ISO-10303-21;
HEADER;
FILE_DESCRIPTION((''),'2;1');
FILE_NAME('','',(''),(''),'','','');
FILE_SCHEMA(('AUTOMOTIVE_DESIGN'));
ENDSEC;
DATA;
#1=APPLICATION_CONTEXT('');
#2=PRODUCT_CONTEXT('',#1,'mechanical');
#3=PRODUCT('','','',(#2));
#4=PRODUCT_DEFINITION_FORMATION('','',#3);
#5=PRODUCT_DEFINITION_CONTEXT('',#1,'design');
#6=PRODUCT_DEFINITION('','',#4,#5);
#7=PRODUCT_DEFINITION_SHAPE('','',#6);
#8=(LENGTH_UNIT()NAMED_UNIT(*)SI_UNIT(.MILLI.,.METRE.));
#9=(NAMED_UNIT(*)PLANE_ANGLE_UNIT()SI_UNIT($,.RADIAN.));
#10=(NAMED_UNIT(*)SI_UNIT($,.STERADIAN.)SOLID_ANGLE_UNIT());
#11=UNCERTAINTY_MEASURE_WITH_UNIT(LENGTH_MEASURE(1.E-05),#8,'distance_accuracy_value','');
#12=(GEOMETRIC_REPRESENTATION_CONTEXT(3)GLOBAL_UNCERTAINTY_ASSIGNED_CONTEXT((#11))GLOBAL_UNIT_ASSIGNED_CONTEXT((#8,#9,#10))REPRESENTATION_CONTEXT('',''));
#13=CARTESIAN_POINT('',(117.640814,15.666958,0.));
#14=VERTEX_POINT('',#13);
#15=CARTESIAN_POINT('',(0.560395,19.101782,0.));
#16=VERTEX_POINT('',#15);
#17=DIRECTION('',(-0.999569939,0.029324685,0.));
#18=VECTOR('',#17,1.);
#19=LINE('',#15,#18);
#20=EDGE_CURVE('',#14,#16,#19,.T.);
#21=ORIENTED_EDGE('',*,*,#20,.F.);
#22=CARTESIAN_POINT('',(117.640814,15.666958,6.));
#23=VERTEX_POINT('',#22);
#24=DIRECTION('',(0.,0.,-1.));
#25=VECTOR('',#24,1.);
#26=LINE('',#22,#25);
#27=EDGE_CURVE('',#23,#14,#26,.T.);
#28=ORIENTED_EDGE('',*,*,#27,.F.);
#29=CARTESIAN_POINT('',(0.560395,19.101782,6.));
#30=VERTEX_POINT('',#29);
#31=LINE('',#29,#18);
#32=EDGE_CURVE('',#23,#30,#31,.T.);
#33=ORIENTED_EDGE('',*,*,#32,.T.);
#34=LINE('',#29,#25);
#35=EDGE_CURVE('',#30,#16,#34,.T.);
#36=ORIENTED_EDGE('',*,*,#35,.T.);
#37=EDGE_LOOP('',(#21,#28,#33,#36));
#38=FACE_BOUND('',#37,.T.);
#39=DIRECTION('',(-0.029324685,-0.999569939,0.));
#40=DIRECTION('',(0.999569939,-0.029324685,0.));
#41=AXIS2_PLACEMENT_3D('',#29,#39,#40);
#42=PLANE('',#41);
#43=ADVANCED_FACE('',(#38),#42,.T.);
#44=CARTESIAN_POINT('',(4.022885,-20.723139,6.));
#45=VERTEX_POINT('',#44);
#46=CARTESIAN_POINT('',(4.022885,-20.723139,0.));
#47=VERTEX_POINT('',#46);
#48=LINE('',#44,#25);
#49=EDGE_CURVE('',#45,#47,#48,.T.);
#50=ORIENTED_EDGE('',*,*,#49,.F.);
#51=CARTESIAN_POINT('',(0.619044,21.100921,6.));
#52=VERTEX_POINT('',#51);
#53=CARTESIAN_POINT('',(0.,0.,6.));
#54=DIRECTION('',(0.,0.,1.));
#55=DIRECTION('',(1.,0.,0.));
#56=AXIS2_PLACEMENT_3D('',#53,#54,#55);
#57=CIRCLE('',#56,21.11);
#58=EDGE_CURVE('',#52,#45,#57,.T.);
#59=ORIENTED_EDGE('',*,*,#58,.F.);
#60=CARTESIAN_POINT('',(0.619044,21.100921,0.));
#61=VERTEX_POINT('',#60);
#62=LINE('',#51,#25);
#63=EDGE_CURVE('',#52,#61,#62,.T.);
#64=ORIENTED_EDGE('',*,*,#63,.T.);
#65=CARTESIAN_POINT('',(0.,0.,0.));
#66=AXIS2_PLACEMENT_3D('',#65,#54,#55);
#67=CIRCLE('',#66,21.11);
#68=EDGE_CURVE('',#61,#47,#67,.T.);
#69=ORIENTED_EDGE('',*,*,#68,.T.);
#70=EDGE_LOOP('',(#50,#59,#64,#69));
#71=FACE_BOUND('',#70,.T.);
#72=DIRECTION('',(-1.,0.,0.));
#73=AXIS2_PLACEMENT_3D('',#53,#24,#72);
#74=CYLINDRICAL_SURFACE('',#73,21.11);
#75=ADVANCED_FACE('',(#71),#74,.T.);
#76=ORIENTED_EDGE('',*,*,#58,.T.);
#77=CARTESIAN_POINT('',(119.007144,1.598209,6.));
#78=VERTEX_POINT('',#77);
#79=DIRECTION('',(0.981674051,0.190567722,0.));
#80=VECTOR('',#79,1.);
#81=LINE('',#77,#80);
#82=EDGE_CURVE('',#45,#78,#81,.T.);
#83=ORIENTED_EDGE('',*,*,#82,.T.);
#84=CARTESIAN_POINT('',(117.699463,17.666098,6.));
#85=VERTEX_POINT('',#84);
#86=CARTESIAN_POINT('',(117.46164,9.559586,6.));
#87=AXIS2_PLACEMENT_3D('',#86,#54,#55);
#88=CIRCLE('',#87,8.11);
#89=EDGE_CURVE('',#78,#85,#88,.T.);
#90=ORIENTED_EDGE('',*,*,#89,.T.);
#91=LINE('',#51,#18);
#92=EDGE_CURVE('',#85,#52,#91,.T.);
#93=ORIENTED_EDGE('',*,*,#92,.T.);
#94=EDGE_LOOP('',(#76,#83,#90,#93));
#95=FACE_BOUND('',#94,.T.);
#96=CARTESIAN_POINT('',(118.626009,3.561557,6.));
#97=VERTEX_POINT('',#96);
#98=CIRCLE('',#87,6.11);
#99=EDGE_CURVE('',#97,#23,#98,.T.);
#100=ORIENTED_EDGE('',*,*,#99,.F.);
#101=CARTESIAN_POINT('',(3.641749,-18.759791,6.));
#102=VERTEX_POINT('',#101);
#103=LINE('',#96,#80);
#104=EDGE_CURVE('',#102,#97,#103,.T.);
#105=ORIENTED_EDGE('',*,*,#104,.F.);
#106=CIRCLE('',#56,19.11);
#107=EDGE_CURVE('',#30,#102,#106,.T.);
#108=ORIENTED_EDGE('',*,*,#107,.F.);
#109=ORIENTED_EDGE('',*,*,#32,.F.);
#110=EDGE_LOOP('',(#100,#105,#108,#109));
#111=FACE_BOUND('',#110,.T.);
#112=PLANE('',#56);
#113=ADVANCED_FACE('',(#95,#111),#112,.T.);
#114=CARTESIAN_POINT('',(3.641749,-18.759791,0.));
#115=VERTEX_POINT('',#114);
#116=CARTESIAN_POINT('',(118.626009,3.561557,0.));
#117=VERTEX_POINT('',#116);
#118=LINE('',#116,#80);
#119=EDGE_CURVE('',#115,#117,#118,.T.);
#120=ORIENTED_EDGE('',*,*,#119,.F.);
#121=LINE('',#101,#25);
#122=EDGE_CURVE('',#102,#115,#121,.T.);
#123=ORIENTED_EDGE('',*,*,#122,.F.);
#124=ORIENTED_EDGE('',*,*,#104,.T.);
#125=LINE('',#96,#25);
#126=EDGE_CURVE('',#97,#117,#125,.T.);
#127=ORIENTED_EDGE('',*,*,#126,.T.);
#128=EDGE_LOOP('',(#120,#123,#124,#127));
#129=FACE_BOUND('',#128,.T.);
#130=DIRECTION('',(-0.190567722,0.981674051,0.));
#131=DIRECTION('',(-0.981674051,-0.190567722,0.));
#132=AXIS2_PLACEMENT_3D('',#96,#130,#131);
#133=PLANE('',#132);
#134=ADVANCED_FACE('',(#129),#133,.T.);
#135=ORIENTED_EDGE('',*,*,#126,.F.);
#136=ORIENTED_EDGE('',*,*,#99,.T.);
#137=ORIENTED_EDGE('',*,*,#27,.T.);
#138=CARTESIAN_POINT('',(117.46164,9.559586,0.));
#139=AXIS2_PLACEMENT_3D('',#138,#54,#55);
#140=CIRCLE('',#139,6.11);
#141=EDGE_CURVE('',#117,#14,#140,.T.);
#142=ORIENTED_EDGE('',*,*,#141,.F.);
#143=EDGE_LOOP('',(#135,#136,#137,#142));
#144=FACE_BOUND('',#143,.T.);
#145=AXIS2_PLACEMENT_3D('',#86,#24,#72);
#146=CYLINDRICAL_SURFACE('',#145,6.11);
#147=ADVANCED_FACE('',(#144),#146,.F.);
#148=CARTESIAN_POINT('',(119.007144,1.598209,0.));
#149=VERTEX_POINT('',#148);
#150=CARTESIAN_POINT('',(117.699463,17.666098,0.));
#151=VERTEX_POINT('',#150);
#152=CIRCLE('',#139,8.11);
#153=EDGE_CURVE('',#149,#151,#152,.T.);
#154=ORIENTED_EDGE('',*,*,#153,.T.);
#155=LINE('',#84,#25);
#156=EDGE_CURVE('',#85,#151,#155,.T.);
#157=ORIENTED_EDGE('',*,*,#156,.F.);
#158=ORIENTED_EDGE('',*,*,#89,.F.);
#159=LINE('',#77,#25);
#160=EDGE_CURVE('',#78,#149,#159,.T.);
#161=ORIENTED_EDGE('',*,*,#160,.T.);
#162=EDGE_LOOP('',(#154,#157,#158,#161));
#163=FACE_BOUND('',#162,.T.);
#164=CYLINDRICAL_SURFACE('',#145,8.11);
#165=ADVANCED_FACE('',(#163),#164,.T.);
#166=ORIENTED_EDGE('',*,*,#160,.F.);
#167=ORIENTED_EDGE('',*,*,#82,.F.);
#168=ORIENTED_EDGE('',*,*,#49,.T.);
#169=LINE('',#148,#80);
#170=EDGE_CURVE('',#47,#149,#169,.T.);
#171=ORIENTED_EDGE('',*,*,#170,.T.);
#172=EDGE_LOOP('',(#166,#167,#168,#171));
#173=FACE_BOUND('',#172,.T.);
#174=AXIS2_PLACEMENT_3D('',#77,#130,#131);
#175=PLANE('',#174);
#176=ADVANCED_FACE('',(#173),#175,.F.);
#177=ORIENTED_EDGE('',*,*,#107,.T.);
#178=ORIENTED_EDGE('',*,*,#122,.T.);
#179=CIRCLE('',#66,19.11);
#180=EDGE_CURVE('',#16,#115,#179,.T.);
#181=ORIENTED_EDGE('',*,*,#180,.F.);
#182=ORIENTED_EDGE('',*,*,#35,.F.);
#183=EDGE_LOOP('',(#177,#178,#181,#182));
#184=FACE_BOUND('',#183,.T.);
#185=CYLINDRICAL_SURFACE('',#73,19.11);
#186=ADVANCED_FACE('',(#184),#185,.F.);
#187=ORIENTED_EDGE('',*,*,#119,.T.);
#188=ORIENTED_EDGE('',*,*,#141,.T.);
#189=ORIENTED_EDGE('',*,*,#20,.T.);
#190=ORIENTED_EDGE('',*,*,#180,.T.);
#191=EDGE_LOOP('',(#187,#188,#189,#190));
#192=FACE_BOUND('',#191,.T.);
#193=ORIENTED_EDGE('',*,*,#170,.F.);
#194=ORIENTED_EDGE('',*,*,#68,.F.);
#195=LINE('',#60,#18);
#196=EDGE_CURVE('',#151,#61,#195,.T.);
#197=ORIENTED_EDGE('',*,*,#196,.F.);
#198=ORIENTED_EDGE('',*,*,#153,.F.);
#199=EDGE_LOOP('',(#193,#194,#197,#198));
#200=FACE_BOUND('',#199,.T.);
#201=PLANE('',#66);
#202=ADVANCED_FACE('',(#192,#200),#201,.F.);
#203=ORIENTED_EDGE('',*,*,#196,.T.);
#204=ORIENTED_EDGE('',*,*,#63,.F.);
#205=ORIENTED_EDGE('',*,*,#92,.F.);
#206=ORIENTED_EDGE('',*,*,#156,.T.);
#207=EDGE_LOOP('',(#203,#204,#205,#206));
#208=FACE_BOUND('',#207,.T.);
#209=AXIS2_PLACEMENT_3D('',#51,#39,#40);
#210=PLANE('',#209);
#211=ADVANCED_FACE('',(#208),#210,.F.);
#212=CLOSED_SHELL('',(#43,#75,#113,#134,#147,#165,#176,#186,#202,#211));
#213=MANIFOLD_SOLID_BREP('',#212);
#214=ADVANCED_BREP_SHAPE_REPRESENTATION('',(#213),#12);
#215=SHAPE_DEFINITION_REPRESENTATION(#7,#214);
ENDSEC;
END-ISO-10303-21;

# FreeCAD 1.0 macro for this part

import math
import FreeCAD as App
import Part
import Sketcher
Q = App.Units.Quantity

doc = App.newDocument("Part")
body = doc.addObject("PartDesign::Body", "Body")

# Sketch on XY plane
sketch1 = doc.addObject("Sketcher::SketchObject", "Sketch")
body.addObject(sketch1)
sketch1.AttachmentSupport = (doc.XY_Plane, [""])
sketch1.MapMode = "FlatFace"
sketch1.addGeometry(Part.LineSegment(App.Vector(117.699463, 17.666098, 0), App.Vector(0.619044, 21.100921, 0)), False)
sketch1.addGeometry(Part.ArcOfCircle(Part.Circle(App.Vector(0, 0, 0), App.Vector(0, 0, 1), 21.11), math.radians(88.319578), math.radians(280.985918)), False)
sketch1.addGeometry(Part.LineSegment(App.Vector(4.022885, -20.723139, 0), App.Vector(119.007144, 1.598209, 0)), False)
sketch1.addGeometry(Part.ArcOfCircle(Part.Circle(App.Vector(117.46164, 9.559586, 0), App.Vector(0, 0, 1), 8.11), math.radians(-79.014082), math.radians(88.319578)), False)
sketch1.addGeometry(Part.LineSegment(App.Vector(0.560395, 19.101782, 0), App.Vector(117.640814, 15.666958, 0)), False)
sketch1.addGeometry(Part.ArcOfCircle(Part.Circle(App.Vector(117.46164, 9.559586, 0), App.Vector(0, 0, 1), 6.11), math.radians(-79.014082), math.radians(88.319578)), False)
sketch1.addGeometry(Part.LineSegment(App.Vector(118.626009, 3.561557, 0), App.Vector(3.641749, -18.759791, 0)), False)
sketch1.addGeometry(Part.ArcOfCircle(Part.Circle(App.Vector(0, 0, 0), App.Vector(0, 0, 1), 19.11), math.radians(88.319578), math.radians(280.985918)), False)
sketch1.addConstraint(Sketcher.Constraint("Coincident", 0, 2, 1, 1))
sketch1.addConstraint(Sketcher.Constraint("Coincident", 1, 2, 2, 1))
sketch1.addConstraint(Sketcher.Constraint("Coincident", 2, 2, 3, 1))
sketch1.addConstraint(Sketcher.Constraint("Coincident", 3, 2, 0, 1))
sketch1.addConstraint(Sketcher.Constraint("Coincident", 4, 2, 5, 2))
sketch1.addConstraint(Sketcher.Constraint("Coincident", 5, 1, 6, 1))
sketch1.addConstraint(Sketcher.Constraint("Coincident", 6, 2, 7, 2))
sketch1.addConstraint(Sketcher.Constraint("Coincident", 7, 1, 4, 1))
sketch1.addConstraint(Sketcher.Constraint("Coincident", 1, 3, -1, 1))
sketch1.addConstraint(Sketcher.Constraint("Coincident", 7, 3, -1, 1))
sketch1.addConstraint(Sketcher.Constraint("Coincident", 5, 3, 3, 3))
sketch1.addConstraint(Sketcher.Constraint("Radius", 1, Q("21.11 mm")))
sketch1.addConstraint(Sketcher.Constraint("Radius", 3, Q("8.11 mm")))
sketch1.addConstraint(Sketcher.Constraint("Radius", 5, Q("6.11 mm")))
sketch1.addConstraint(Sketcher.Constraint("Radius", 7, Q("19.11 mm")))
sketch1.addConstraint(Sketcher.Constraint("DistanceY", 5, 1, 4, 2, Q("12.105401 mm")))
sketch1.addConstraint(Sketcher.Constraint("DistanceX", -1, 1, 3, 3, Q("117.46164 mm")))
sketch1.addConstraint(Sketcher.Constraint("DistanceY", -1, 1, 0, 2, Q("21.100921 mm")))
sketch1.addConstraint(Sketcher.Constraint("DistanceY", 1, 2, -1, 1, Q("20.723139 mm")))
sketch1.addConstraint(Sketcher.Constraint("DistanceY", -1, 1, 2, 2, Q("1.598209 mm")))
sketch1.addConstraint(Sketcher.Constraint("DistanceX", -1, 1, 5, 1, Q("118.626009 mm")))
sketch1.addConstraint(Sketcher.Constraint("DistanceX", -1, 1, 6, 2, Q("3.641749 mm")))
sketch1.addConstraint(Sketcher.Constraint("DistanceY", -1, 1, 7, 1, Q("19.101782 mm")))
sketch1.addConstraint(Sketcher.Constraint("DistanceX", 1, 2, 2, 2, Q("114.984259 mm")))
sketch1.addConstraint(Sketcher.Constraint("DistanceX", 3, 2, 2, 2, Q("1.307681 mm")))
pad1 = doc.addObject("PartDesign::Pad", "Pad")
body.addObject(pad1)
pad1.Profile = sketch1
pad1.Length = 6

doc.recompute()
